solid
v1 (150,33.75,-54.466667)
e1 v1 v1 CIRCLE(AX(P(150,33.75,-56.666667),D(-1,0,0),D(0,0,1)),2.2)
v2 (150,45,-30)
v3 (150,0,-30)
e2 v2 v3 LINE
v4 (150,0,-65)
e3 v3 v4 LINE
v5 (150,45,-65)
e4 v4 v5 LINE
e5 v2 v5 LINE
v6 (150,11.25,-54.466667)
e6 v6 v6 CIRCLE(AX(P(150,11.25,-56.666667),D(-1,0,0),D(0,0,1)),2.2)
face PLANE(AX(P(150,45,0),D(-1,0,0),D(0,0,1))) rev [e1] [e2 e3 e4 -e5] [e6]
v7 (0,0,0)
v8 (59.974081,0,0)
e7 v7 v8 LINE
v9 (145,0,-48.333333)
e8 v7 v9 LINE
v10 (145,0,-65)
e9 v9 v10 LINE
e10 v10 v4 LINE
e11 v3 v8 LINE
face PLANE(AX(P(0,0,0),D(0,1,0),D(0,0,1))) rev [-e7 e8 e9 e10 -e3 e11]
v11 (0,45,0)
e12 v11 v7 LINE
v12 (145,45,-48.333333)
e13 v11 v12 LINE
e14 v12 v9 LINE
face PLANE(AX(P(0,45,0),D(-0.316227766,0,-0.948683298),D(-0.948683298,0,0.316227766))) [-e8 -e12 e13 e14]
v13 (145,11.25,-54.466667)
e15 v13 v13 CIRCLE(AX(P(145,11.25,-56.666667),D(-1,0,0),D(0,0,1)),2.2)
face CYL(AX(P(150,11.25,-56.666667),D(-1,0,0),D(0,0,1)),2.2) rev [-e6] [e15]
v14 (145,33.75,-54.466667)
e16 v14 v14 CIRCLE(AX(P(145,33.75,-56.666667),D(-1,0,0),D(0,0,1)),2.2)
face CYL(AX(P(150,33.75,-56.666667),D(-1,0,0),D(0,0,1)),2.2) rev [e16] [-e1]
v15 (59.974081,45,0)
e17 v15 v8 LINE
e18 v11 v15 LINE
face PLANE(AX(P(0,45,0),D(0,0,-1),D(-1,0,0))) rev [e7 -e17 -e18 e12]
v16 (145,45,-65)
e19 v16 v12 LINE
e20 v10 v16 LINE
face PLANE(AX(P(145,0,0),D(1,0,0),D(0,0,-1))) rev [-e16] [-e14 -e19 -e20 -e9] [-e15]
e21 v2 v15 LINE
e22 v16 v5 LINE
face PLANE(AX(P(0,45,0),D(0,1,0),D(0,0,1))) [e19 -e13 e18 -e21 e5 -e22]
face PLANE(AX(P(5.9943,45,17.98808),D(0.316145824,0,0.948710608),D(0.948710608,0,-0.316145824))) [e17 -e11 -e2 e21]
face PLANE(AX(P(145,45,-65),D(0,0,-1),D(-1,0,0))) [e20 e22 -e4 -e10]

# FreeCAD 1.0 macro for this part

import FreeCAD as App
import Part
import Sketcher

V = App.Vector
Q = App.Units.Quantity


def add_polygon(sketch, points):
    """Adds a closed chain of lines whose ends are joined by coincident constraints."""
    first, n = sketch.GeometryCount, len(points)
    for a, b in zip(points, points[1:] + points[:1]):
        sketch.addGeometry(Part.LineSegment(App.Vector(*a, 0), App.Vector(*b, 0)), False)
    for i in range(n):
        sketch.addConstraint(Sketcher.Constraint("Coincident", first + i, 2, first + (i + 1) % n, 1))

doc = App.newDocument("Part")
body = doc.addObject("PartDesign::Body", "Body")

sketch1 = body.newObject("Sketcher::SketchObject", "Sketch")
sketch1.AttachmentSupport = (doc.getObject("XZ_Plane"), [""])
sketch1.MapMode = "FlatFace"
add_polygon(sketch1, [(150, -50), (0, 0), (59.974081, 0), (150, -30)])
sketch1.addConstraint([
    Sketcher.Constraint("Horizontal", 1),
    Sketcher.Constraint("Vertical", 3),
    Sketcher.Constraint("Coincident", 0, 2, -1, 1),
    Sketcher.Constraint("DistanceY", 3, 2, 3, 1, Q("20 mm")),
    Sketcher.Constraint("DistanceX", -1, 1, 2, 2, Q("150 mm")),
    Sketcher.Constraint("DistanceY", 2, 2, -1, 1, Q("30 mm")),
    Sketcher.Constraint("Angle", 2, Q("-18.43 deg")),
])
pad1 = body.newObject("PartDesign::Pad", "Pad")
pad1.Profile = sketch1
pad1.Length = 45
pad1.Reversed = True

sketch2 = body.newObject("Sketcher::SketchObject", "Sketch001")
sketch2.AttachmentSupport = (doc.getObject("YZ_Plane"), [""])
sketch2.MapMode = "FlatFace"
sketch2.AttachmentOffset = App.Placement(V(0, 0, 150), App.Rotation())
add_polygon(sketch2, [(45, -30), (0, -30), (0, -65), (45, -65)])
sketch2.addConstraint([
    Sketcher.Constraint("Horizontal", 0),
    Sketcher.Constraint("Vertical", 1),
    Sketcher.Constraint("Horizontal", 2),
    Sketcher.Constraint("Vertical", 3),
    Sketcher.Constraint("PointOnObject", 0, 2, -2),
    Sketcher.Constraint("DistanceX", 0, 2, 0, 1, Q("45 mm")),
    Sketcher.Constraint("DistanceY", 1, 2, 1, 1, Q("35 mm")),
    Sketcher.Constraint("DistanceY", 0, 2, -1, 1, Q("30 mm")),
])
pad2 = body.newObject("PartDesign::Pad", "Pad001")
pad2.Profile = sketch2
pad2.Length = 5
pad2.Reversed = True

sketch3 = body.newObject("Sketcher::SketchObject", "Sketch002")
sketch3.AttachmentSupport = (doc.getObject("YZ_Plane"), [""])
sketch3.MapMode = "FlatFace"
sketch3.AttachmentOffset = App.Placement(V(0, 0, 145), App.Rotation())
sketch3.addGeometry([
    Part.Circle(V(33.75, -56.666667, 0), V(0, 0, 1), 2.2),
    Part.Circle(V(11.25, -56.666667, 0), V(0, 0, 1), 2.2),
], False)
sketch3.addConstraint([
    Sketcher.Constraint("Equal", 0, 1),
    Sketcher.Constraint("Horizontal", 0, 3, 1, 3),
    Sketcher.Constraint("Diameter", 0, Q("4.4 mm")),
    Sketcher.Constraint("DistanceX", 1, 3, 0, 3, Q("22.5 mm")),
    Sketcher.Constraint("DistanceX", -1, 1, 0, 3, Q("33.75 mm")),
    Sketcher.Constraint("DistanceY", 0, 3, -1, 1, Q("56.666667 mm")),
])
pocket1 = body.newObject("PartDesign::Pocket", "Pocket")
pocket1.Profile = sketch3
pocket1.Length = 5
pocket1.Reversed = True

doc.recompute()
